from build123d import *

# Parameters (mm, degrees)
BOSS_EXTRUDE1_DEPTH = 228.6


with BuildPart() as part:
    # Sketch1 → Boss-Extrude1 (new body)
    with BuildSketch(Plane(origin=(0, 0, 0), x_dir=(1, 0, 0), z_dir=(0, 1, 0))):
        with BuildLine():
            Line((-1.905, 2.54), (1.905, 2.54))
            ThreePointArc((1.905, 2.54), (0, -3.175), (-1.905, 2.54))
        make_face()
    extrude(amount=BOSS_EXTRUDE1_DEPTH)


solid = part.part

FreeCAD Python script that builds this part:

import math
import FreeCAD as App
import Part
import Sketcher
Q = App.Units.Quantity

doc = App.newDocument("Part")
body = doc.addObject("PartDesign::Body", "Body")

# Sketch on XZ plane
sketch1 = body.newObject("Sketcher::SketchObject", "Sketch")
sketch1.AttachmentSupport = (doc.getObject("XZ_Plane"), [""])
sketch1.MapMode = "FlatFace"
sketch1.addGeometry([
    Part.LineSegment(App.Vector(1.905, -2.54, 0), App.Vector(-1.905, -2.54, 0)),
    Part.ArcOfCircle(Part.Circle(App.Vector(0, 0, 0), App.Vector(0, 0, 1), 3.175), math.radians(-53.130102), math.radians(233.130102)),
], False)
sketch1.addConstraint([
    Sketcher.Constraint("Coincident", 0, 1, 1, 1),
    Sketcher.Constraint("Coincident", 1, 2, 0, 2),
    Sketcher.Constraint("Horizontal", 0),
    Sketcher.Constraint("Coincident", 1, 3, -1, 1),
    Sketcher.Constraint("Radius", 1, Q("0.125 in")),
    Sketcher.Constraint("DistanceX", 0, 2, 0, 1, Q("0.15 in")),
])
pad1 = body.newObject("PartDesign::Pad", "Pad")
pad1.Profile = sketch1
pad1.Length = Q("9 in")
pad1.Reversed = True

doc.recompute()
